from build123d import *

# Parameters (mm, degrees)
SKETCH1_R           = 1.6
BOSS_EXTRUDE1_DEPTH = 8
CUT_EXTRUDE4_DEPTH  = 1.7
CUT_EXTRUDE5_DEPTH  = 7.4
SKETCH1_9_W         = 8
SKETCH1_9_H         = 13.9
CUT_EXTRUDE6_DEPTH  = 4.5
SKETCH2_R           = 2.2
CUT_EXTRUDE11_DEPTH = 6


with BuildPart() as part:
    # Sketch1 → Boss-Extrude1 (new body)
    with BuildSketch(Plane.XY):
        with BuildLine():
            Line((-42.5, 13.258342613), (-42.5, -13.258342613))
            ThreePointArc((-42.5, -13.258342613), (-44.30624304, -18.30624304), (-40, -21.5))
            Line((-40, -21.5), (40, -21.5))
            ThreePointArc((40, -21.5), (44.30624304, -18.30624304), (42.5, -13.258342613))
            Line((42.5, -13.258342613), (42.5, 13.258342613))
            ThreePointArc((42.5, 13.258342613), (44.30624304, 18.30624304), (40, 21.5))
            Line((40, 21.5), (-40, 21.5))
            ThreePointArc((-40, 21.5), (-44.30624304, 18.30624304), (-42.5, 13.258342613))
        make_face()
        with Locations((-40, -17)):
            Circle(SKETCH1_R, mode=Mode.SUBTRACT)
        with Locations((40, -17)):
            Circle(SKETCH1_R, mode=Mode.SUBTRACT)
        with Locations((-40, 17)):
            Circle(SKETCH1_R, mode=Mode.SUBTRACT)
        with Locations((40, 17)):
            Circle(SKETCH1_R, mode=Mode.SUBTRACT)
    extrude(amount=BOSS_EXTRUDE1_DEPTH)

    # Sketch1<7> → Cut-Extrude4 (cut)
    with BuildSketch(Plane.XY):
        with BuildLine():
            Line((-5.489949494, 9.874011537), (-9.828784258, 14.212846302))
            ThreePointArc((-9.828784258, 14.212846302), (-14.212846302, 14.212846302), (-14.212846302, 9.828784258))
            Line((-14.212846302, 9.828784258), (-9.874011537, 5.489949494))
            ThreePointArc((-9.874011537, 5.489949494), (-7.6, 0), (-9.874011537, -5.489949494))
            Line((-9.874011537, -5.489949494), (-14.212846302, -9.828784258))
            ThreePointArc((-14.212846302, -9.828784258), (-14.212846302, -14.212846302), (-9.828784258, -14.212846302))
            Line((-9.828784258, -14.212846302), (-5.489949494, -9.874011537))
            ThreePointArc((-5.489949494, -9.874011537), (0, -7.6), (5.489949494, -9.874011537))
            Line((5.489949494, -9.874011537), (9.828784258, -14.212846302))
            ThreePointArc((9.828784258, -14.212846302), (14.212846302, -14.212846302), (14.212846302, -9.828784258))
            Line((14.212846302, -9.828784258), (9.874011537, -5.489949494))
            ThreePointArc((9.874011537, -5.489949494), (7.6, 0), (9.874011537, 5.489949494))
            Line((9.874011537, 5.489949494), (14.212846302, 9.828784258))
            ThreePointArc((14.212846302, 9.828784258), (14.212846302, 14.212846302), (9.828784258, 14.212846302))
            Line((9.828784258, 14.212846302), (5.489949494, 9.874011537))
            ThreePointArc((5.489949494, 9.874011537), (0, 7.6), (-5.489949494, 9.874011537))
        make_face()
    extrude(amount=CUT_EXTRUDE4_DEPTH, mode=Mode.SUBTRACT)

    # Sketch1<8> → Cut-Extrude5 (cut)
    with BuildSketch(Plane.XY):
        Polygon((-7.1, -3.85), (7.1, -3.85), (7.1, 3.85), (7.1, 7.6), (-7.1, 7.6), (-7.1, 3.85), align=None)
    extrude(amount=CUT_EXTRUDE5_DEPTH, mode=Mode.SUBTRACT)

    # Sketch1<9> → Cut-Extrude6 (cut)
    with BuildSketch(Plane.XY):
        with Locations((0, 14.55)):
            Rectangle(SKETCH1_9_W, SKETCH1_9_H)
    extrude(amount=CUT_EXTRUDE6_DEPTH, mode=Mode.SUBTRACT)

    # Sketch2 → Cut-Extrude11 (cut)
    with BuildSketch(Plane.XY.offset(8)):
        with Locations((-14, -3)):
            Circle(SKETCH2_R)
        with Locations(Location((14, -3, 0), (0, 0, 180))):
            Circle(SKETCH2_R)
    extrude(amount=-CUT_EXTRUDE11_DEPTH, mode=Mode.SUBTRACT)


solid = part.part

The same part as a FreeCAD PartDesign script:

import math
import FreeCAD as App
import Part
import Sketcher
from FreeCAD import Vector


def add_polygon(sketch, points):
    """Adds a closed chain of lines whose ends are joined by coincident constraints."""
    first, n = sketch.GeometryCount, len(points)
    for a, b in zip(points, points[1:] + points[:1]):
        sketch.addGeometry(Part.LineSegment(App.Vector(*a, 0), App.Vector(*b, 0)), False)
    for i in range(n):
        sketch.addConstraint(Sketcher.Constraint("Coincident", first + i, 2, first + (i + 1) % n, 1))

doc = App.newDocument("Part")
body = doc.addObject("PartDesign::Body", "Body")

# Sketch on XY plane
sketch1 = body.newObject("Sketcher::SketchObject", "Sketch")
sketch1.AttachmentSupport = (doc.getObject("XY_Plane"), [""])
sketch1.MapMode = "FlatFace"
sketch1.addGeometry(Part.LineSegment(Vector(-42.5, 13.3, 0), Vector(-42.5, -13.3, 0)), False)
sketch1.addGeometry(Part.ArcOfCircle(Part.Circle(Vector(-40, -17, 0), Vector(0, 0, 1), 4.5), math.radians(124), math.radians(270)), False)
sketch1.addGeometry(Part.LineSegment(Vector(-40, -21.5, 0), Vector(40, -21.5, 0)), False)
sketch1.addGeometry(Part.ArcOfCircle(Part.Circle(Vector(40, -17, 0), Vector(0, 0, 1), 4.5), math.radians(-90), math.radians(56)), False)
sketch1.addGeometry(Part.LineSegment(Vector(42.5, -13.3, 0), Vector(42.5, 13.3, 0)), False)
sketch1.addGeometry(Part.ArcOfCircle(Part.Circle(Vector(40, 17, 0), Vector(0, 0, 1), 4.5), math.radians(-56), math.radians(90)), False)
sketch1.addGeometry(Part.LineSegment(Vector(40, 21.5, 0), Vector(-40, 21.5, 0)), False)
sketch1.addGeometry(Part.ArcOfCircle(Part.Circle(Vector(-40, 17, 0), Vector(0, 0, 1), 4.5), math.radians(90), math.radians(236)), False)
sketch1.addGeometry(Part.Circle(Vector(-40, -17, 0), Vector(0, 0, 1), 1.6), False)
sketch1.addGeometry(Part.Circle(Vector(40, -17, 0), Vector(0, 0, 1), 1.6), False)
sketch1.addGeometry(Part.Circle(Vector(-40, 17, 0), Vector(0, 0, 1), 1.6), False)
sketch1.addGeometry(Part.Circle(Vector(40, 17, 0), Vector(0, 0, 1), 1.6), False)
sketch1.addConstraint(Sketcher.Constraint("Coincident", 0, 2, 1, 1))
sketch1.addConstraint(Sketcher.Constraint("Tangent", 1, 2, 2, 1))
sketch1.addConstraint(Sketcher.Constraint("Tangent", 2, 2, 3, 1))
sketch1.addConstraint(Sketcher.Constraint("Coincident", 3, 2, 4, 1))
sketch1.addConstraint(Sketcher.Constraint("Coincident", 4, 2, 5, 1))
sketch1.addConstraint(Sketcher.Constraint("Tangent", 5, 2, 6, 1))
sketch1.addConstraint(Sketcher.Constraint("Tangent", 6, 2, 7, 1))
sketch1.addConstraint(Sketcher.Constraint("Coincident", 7, 2, 0, 1))
sketch1.addConstraint(Sketcher.Constraint("Vertical", 0))
sketch1.addConstraint(Sketcher.Constraint("Horizontal", 2))
sketch1.addConstraint(Sketcher.Constraint("Vertical", 4))
sketch1.addConstraint(Sketcher.Constraint("Horizontal", 6))
sketch1.addConstraint(Sketcher.Constraint("Coincident", 8, 3, 1, 3))
sketch1.addConstraint(Sketcher.Constraint("Coincident", 9, 3, 3, 3))
sketch1.addConstraint(Sketcher.Constraint("Coincident", 10, 3, 7, 3))
sketch1.addConstraint(Sketcher.Constraint("Coincident", 11, 3, 5, 3))
sketch1.addConstraint(Sketcher.Constraint("Equal", 1, 3))
sketch1.addConstraint(Sketcher.Constraint("Equal", 3, 5))
sketch1.addConstraint(Sketcher.Constraint("Equal", 5, 7))
sketch1.addConstraint(Sketcher.Constraint("Equal", 8, 9))
sketch1.addConstraint(Sketcher.Constraint("Equal", 9, 10))
sketch1.addConstraint(Sketcher.Constraint("Equal", 10, 11))
sketch1.addConstraint(Sketcher.Constraint("Symmetric", 1, 3, 5, 3, -1, 1))
sketch1.addConstraint(Sketcher.Constraint("Symmetric", 3, 2, 7, 2, -1, 1))
sketch1.addConstraint(Sketcher.Constraint("Horizontal", 0, 2, 3, 2))
sketch1.addConstraint(Sketcher.Constraint("Diameter", 8, 3.2))
sketch1.addConstraint(Sketcher.Constraint("Radius", 1, 4.5))
sketch1.addConstraint(Sketcher.Constraint("DistanceX", 2, 1, 2, 2, 80.0))
sketch1.addConstraint(Sketcher.Constraint("DistanceY", 1, 3, -1, 1, 17.0))
sketch1.addConstraint(Sketcher.Constraint("DistanceX", 0, 2, -1, 1, 42.5))
pad1 = body.newObject("PartDesign::Pad", "Pad")
pad1.Profile = sketch1
pad1.Length = 8

# Sketch on XY plane
sketch2 = body.newObject("Sketcher::SketchObject", "Sketch001")
sketch2.AttachmentSupport = (doc.getObject("XY_Plane"), [""])
sketch2.MapMode = "FlatFace"
sketch2.addGeometry(Part.LineSegment(Vector(-5.5, 9.9, 0), Vector(-9.8, 14.2, 0)), False)
sketch2.addGeometry(Part.ArcOfCircle(Part.Circle(Vector(-12, 12, 0), Vector(0, 0, 1), 3.1), math.radians(45), math.radians(225)), False)
sketch2.addGeometry(Part.LineSegment(Vector(-14.2, 9.8, 0), Vector(-9.9, 5.5, 0)), False)
sketch2.addGeometry(Part.ArcOfCircle(Part.Circle(Vector(-15.4, 0, 0), Vector(0, 0, 1), 7.8), math.radians(-45), math.radians(45)), False)
sketch2.addGeometry(Part.LineSegment(Vector(-9.9, -5.5, 0), Vector(-14.2, -9.8, 0)), False)
sketch2.addGeometry(Part.ArcOfCircle(Part.Circle(Vector(-12, -12, 0), Vector(0, 0, 1), 3.1), math.radians(135), math.radians(315)), False)
sketch2.addGeometry(Part.LineSegment(Vector(-9.8, -14.2, 0), Vector(-5.5, -9.9, 0)), False)
sketch2.addGeometry(Part.ArcOfCircle(Part.Circle(Vector(0, -15.4, 0), Vector(0, 0, 1), 7.8), math.radians(45), math.radians(135)), False)
sketch2.addGeometry(Part.LineSegment(Vector(5.5, -9.9, 0), Vector(9.8, -14.2, 0)), False)
sketch2.addGeometry(Part.ArcOfCircle(Part.Circle(Vector(12, -12, 0), Vector(0, 0, 1), 3.1), math.radians(-135), math.radians(45)), False)
sketch2.addGeometry(Part.LineSegment(Vector(14.2, -9.8, 0), Vector(9.9, -5.5, 0)), False)
sketch2.addGeometry(Part.ArcOfCircle(Part.Circle(Vector(15.4, 0, 0), Vector(0, 0, 1), 7.8), math.radians(135), math.radians(225)), False)
sketch2.addGeometry(Part.LineSegment(Vector(9.9, 5.5, 0), Vector(14.2, 9.8, 0)), False)
sketch2.addGeometry(Part.ArcOfCircle(Part.Circle(Vector(12, 12, 0), Vector(0, 0, 1), 3.1), math.radians(-45), math.radians(135)), False)
sketch2.addGeometry(Part.LineSegment(Vector(9.8, 14.2, 0), Vector(5.5, 9.9, 0)), False)
sketch2.addGeometry(Part.ArcOfCircle(Part.Circle(Vector(0, 15.4, 0), Vector(0, 0, 1), 7.8), math.radians(-135), math.radians(-45)), False)
sketch2.addConstraint(Sketcher.Constraint("Tangent", 0, 2, 1, 1))
sketch2.addConstraint(Sketcher.Constraint("Tangent", 1, 2, 2, 1))
sketch2.addConstraint(Sketcher.Constraint("Tangent", 2, 2, 3, 2))
sketch2.addConstraint(Sketcher.Constraint("Tangent", 3, 1, 4, 1))
sketch2.addConstraint(Sketcher.Constraint("Tangent", 4, 2, 5, 1))
sketch2.addConstraint(Sketcher.Constraint("Tangent", 5, 2, 6, 1))
sketch2.addConstraint(Sketcher.Constraint("Tangent", 6, 2, 7, 2))
sketch2.addConstraint(Sketcher.Constraint("Tangent", 7, 1, 8, 1))
sketch2.addConstraint(Sketcher.Constraint("Tangent", 8, 2, 9, 1))
sketch2.addConstraint(Sketcher.Constraint("Tangent", 9, 2, 10, 1))
sketch2.addConstraint(Sketcher.Constraint("Tangent", 10, 2, 11, 2))
sketch2.addConstraint(Sketcher.Constraint("Tangent", 11, 1, 12, 1))
sketch2.addConstraint(Sketcher.Constraint("Tangent", 12, 2, 13, 1))
sketch2.addConstraint(Sketcher.Constraint("Tangent", 13, 2, 14, 1))
sketch2.addConstraint(Sketcher.Constraint("Tangent", 14, 2, 15, 2))
sketch2.addConstraint(Sketcher.Constraint("Tangent", 15, 1, 0, 1))
sketch2.addConstraint(Sketcher.Constraint("Equal", 1, 5))
sketch2.addConstraint(Sketcher.Constraint("Equal", 3, 7))
sketch2.addConstraint(Sketcher.Constraint("Equal", 5, 9))
sketch2.addConstraint(Sketcher.Constraint("Equal", 7, 11))
sketch2.addConstraint(Sketcher.Constraint("Equal", 9, 13))
sketch2.addConstraint(Sketcher.Constraint("Equal", 11, 15))
sketch2.addConstraint(Sketcher.Constraint("Symmetric", 1, 3, 9, 3, -1, 1))
sketch2.addConstraint(Sketcher.Constraint("Symmetric", 3, 3, 11, 3, -1, 1))
sketch2.addConstraint(Sketcher.Constraint("Symmetric", 5, 3, 13, 3, -1, 1))
sketch2.addConstraint(Sketcher.Constraint("Symmetric", 7, 3, 15, 3, -1, 1))
sketch2.addConstraint(Sketcher.Constraint("Symmetric", 5, 3, 9, 3, -2))
sketch2.addConstraint(Sketcher.Constraint("PointOnObject", 3, 3, -1))
sketch2.addConstraint(Sketcher.Constraint("PointOnObject", 7, 3, -2))
sketch2.addConstraint(Sketcher.Constraint("Parallel", 0, 2))
sketch2.addConstraint(Sketcher.Constraint("Perpendicular", 2, 4))
sketch2.addConstraint(Sketcher.Constraint("Equal", 0, 2))
sketch2.addConstraint(Sketcher.Constraint("Radius", 1, 3.1))
sketch2.addConstraint(Sketcher.Constraint("Radius", 3, 7.763961))
sketch2.addConstraint(Sketcher.Constraint("DistanceX", 0, 2, 13, 3, 21.8496))
pocket1 = body.newObject("PartDesign::Pocket", "Pocket")
pocket1.Profile = sketch2
pocket1.Length = 1.7
pocket1.Reversed = True

# Sketch on XY plane
sketch3 = body.newObject("Sketcher::SketchObject", "Sketch002")
sketch3.AttachmentSupport = (doc.getObject("XY_Plane"), [""])
sketch3.MapMode = "FlatFace"
add_polygon(sketch3, [(-7, -4), (7, -4), (7, 8), (-7, 8)])  # lines 0-3
sketch3.addConstraint(Sketcher.Constraint("Horizontal", 0))
sketch3.addConstraint(Sketcher.Constraint("Vertical", 1))
sketch3.addConstraint(Sketcher.Constraint("Horizontal", 2))
sketch3.addConstraint(Sketcher.Constraint("Vertical", 3))
sketch3.addConstraint(Sketcher.Constraint("DistanceX", 0, 1, 0, 2, 14.2))
sketch3.addConstraint(Sketcher.Constraint("DistanceY", 1, 1, 1, 2, 11.45))
sketch3.addConstraint(Sketcher.Constraint("DistanceX", -1, 1, 0, 2, 7.1))
sketch3.addConstraint(Sketcher.Constraint("DistanceY", -1, 1, 1, 2, 7.6))
pocket2 = body.newObject("PartDesign::Pocket", "Pocket001")
pocket2.Profile = sketch3
pocket2.Length = 7.4
pocket2.Reversed = True

# Sketch on XY plane
sketch4 = body.newObject("Sketcher::SketchObject", "Sketch003")
sketch4.AttachmentSupport = (doc.getObject("XY_Plane"), [""])
sketch4.MapMode = "FlatFace"
add_polygon(sketch4, [(-4, 22), (-4, 8), (4, 8), (4, 22)])  # lines 0-3
sketch4.addConstraint(Sketcher.Constraint("Vertical", 0))
sketch4.addConstraint(Sketcher.Constraint("Horizontal", 1))
sketch4.addConstraint(Sketcher.Constraint("Vertical", 2))
sketch4.addConstraint(Sketcher.Constraint("Horizontal", 3))
sketch4.addConstraint(Sketcher.Constraint("DistanceX", 1, 1, 1, 2, 8.0))
sketch4.addConstraint(Sketcher.Constraint("DistanceY", 0, 2, 0, 1, 13.9))
sketch4.addConstraint(Sketcher.Constraint("DistanceX", 0, 2, -1, 1, 4.0))
sketch4.addConstraint(Sketcher.Constraint("DistanceY", -1, 1, 0, 2, 7.6))
pocket3 = body.newObject("PartDesign::Pocket", "Pocket002")
pocket3.Profile = sketch4
pocket3.Length = 4.5
pocket3.Reversed = True

# Sketch on XY plane
sketch5 = body.newObject("Sketcher::SketchObject", "Sketch004")
sketch5.AttachmentSupport = (doc.getObject("XY_Plane"), [""])
sketch5.MapMode = "FlatFace"
sketch5.AttachmentOffset = App.Placement(Vector(0, 0, 8), App.Rotation())
sketch5.addGeometry(Part.Circle(Vector(-14, -3, 0), Vector(0, 0, 1), 2.2), False)
sketch5.addGeometry(Part.Circle(Vector(14, -3, 0), Vector(0, 0, 1), 2.2), False)
sketch5.addConstraint(Sketcher.Constraint("Equal", 0, 1))
sketch5.addConstraint(Sketcher.Constraint("Symmetric", 0, 3, 1, 3, -2))
sketch5.addConstraint(Sketcher.Constraint("Diameter", 0, 4.4))
sketch5.addConstraint(Sketcher.Constraint("DistanceX", 0, 3, -1, 1, 14.0))
sketch5.addConstraint(Sketcher.Constraint("DistanceY", 0, 3, -1, 1, 3.0))
pocket4 = body.newObject("PartDesign::Pocket", "Pocket003")
pocket4.Profile = sketch5
pocket4.Length = 6

doc.recompute()
